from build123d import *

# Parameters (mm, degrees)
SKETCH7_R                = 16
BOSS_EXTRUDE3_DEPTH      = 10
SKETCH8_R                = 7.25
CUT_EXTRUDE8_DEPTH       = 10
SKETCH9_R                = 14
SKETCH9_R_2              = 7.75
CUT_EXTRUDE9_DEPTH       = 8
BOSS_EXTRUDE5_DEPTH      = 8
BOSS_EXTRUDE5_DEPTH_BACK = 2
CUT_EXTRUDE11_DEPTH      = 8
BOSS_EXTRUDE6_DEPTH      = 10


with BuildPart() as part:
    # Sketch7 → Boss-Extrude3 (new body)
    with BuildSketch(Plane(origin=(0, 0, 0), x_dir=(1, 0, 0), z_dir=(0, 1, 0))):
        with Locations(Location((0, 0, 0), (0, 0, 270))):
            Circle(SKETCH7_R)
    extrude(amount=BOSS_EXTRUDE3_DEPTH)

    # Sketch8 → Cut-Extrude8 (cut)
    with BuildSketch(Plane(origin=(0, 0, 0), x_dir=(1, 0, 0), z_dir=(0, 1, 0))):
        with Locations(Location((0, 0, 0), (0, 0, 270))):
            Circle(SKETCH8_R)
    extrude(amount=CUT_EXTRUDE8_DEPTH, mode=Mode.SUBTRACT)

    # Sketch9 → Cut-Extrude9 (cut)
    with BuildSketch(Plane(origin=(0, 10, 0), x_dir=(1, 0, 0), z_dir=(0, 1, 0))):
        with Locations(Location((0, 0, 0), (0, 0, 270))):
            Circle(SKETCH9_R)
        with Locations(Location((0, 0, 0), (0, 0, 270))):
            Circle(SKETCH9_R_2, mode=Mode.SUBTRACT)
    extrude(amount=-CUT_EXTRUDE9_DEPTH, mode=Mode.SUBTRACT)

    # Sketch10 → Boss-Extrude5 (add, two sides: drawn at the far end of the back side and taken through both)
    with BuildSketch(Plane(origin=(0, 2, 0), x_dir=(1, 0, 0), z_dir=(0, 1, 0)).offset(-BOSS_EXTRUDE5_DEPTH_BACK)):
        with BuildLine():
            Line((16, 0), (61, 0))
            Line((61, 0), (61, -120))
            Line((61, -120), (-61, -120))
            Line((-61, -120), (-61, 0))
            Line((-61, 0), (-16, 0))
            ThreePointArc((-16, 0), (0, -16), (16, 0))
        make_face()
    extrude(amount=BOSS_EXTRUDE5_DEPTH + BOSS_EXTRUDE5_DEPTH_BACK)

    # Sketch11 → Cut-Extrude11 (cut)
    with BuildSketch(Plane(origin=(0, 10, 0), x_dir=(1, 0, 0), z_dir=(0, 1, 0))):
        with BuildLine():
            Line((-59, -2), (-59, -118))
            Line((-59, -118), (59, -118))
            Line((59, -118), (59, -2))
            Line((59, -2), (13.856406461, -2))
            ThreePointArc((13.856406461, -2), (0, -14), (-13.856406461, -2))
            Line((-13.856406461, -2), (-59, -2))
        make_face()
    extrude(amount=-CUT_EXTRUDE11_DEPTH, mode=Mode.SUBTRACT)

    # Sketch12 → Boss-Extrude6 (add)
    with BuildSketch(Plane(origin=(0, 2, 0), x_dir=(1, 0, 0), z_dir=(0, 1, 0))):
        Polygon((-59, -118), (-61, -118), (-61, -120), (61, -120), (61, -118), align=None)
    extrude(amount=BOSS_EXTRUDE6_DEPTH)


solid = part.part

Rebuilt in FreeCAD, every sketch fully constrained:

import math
import FreeCAD as App
import Part
import Sketcher

V = App.Vector


def add_polygon(sketch, points):
    """Adds a closed chain of lines whose ends are joined by coincident constraints."""
    first, n = sketch.GeometryCount, len(points)
    for a, b in zip(points, points[1:] + points[:1]):
        sketch.addGeometry(Part.LineSegment(App.Vector(*a, 0), App.Vector(*b, 0)), False)
    for i in range(n):
        sketch.addConstraint(Sketcher.Constraint("Coincident", first + i, 2, first + (i + 1) % n, 1))

doc = App.newDocument("Part")
params = doc.addObject("Spreadsheet::Sheet", "Params")
for row, (alias, value) in enumerate([
    ("sketch1_diameter", "32 mm"),
    ("pad1_length", "10 mm"),
    ("sketch2_diameter", "14.5 mm"),
    ("pocket1_length", "10 mm"),
    ("sketch3_diameter", "28 mm"),
    ("sketch3_diameter2", "15.5 mm"),
    ("pocket2_length", "8 mm"),
    ("sketch4_radius", "16 mm"),
    ("sketch4_width", "45 mm"),
    ("sketch4_height", "120 mm"),
    ("pad2_length", "8 mm"),
    ("pad2_length2", "2 mm"),
    ("sketch5_radius", "14 mm"),
    ("sketch5_width", "118 mm"),
    ("sketch5_height", "116 mm"),
    ("pocket3_length", "8 mm"),
    ("sketch6_width", "122 mm"),
    ("sketch6_height", "2 mm"),
    ("pad3_length", "10 mm"),
], start=1):
    params.set(f"A{row}", alias)
    params.set(f"B{row}", "=" + value)
    params.setAlias(f"B{row}", alias)

body = doc.addObject("PartDesign::Body", "Body")

# Sketch on XZ plane
sketch1 = body.newObject("Sketcher::SketchObject", "Sketch")
sketch1.AttachmentSupport = (doc.getObject("XZ_Plane"), [""])
sketch1.MapMode = "FlatFace"
sketch1.addGeometry(Part.Circle(V(0, 0, 0), V(0, 0, 1), 16), False)
sketch1.addConstraint([
    Sketcher.Constraint("Coincident", 0, 3, -1, 1),
    Sketcher.Constraint("Diameter", 0, 32.0),
])
sketch1.setExpression("Constraints[1]", "Params.sketch1_diameter")
pad1 = body.newObject("PartDesign::Pad", "Pad")
pad1.Profile = sketch1
pad1.setExpression("Length", "Params.pad1_length")
pad1.Reversed = True

# Sketch on XZ plane
sketch2 = body.newObject("Sketcher::SketchObject", "Sketch001")
sketch2.AttachmentSupport = (doc.getObject("XZ_Plane"), [""])
sketch2.MapMode = "FlatFace"
sketch2.addGeometry(Part.Circle(V(0, 0, 0), V(0, 0, 1), 7.25), False)
sketch2.addConstraint([
    Sketcher.Constraint("Coincident", 0, 3, -1, 1),
    Sketcher.Constraint("Diameter", 0, 14.5),
])
sketch2.setExpression("Constraints[1]", "Params.sketch2_diameter")
pocket1 = body.newObject("PartDesign::Pocket", "Pocket")
pocket1.Profile = sketch2
pocket1.setExpression("Length", "Params.pocket1_length")

# Sketch on XZ plane
sketch3 = body.newObject("Sketcher::SketchObject", "Sketch002")
sketch3.AttachmentSupport = (doc.getObject("XZ_Plane"), [""])
sketch3.MapMode = "FlatFace"
sketch3.AttachmentOffset = App.Placement(V(0, 0, -10), App.Rotation())
sketch3.addGeometry([
    Part.Circle(V(0, 0, 0), V(0, 0, 1), 14),
    Part.Circle(V(0, 0, 0), V(0, 0, 1), 7.75),
], False)
sketch3.addConstraint([
    Sketcher.Constraint("Coincident", 0, 3, -1, 1),
    Sketcher.Constraint("Coincident", 1, 3, -1, 1),
    Sketcher.Constraint("Diameter", 0, 28.0),
    Sketcher.Constraint("Diameter", 1, 15.5),
])
sketch3.setExpression("Constraints[2]", "Params.sketch3_diameter")
sketch3.setExpression("Constraints[3]", "Params.sketch3_diameter2")
pocket2 = body.newObject("PartDesign::Pocket", "Pocket001")
pocket2.Profile = sketch3
pocket2.setExpression("Length", "Params.pocket2_length")
pocket2.Reversed = True

# Sketch on XZ plane
sketch4 = body.newObject("Sketcher::SketchObject", "Sketch003")
sketch4.AttachmentSupport = (doc.getObject("XZ_Plane"), [""])
sketch4.MapMode = "FlatFace"
sketch4.AttachmentOffset = App.Placement(V(0, 0, -2), App.Rotation())
sketch4.addGeometry([
    Part.LineSegment(V(61, 0, 0), V(16, 0, 0)),  # 0
    Part.ArcOfCircle(Part.Circle(V(0, 0, 0), V(0, 0, 1), 16), math.radians(0), math.radians(180)),  # 1
    Part.LineSegment(V(-16, 0, 0), V(-61, 0, 0)),  # 2
    Part.LineSegment(V(-61, 0, 0), V(-61, 120, 0)),  # 3
    Part.LineSegment(V(-61, 120, 0), V(61, 120, 0)),  # 4
    Part.LineSegment(V(61, 120, 0), V(61, 0, 0)),  # 5
], False)
sketch4.addConstraint([
    Sketcher.Constraint("Coincident", 0, 2, 1, 1),
    Sketcher.Constraint("Coincident", 1, 2, 2, 1),
    Sketcher.Constraint("Coincident", 2, 2, 3, 1),
    Sketcher.Constraint("Coincident", 3, 2, 4, 1),
    Sketcher.Constraint("Coincident", 4, 2, 5, 1),
    Sketcher.Constraint("Coincident", 5, 2, 0, 1),
    Sketcher.Constraint("Horizontal", 0),
    Sketcher.Constraint("Horizontal", 2),
    Sketcher.Constraint("Vertical", 3),
    Sketcher.Constraint("Horizontal", 4),
    Sketcher.Constraint("Vertical", 5),
    Sketcher.Constraint("Coincident", 1, 3, -1, 1),
    Sketcher.Constraint("Symmetric", 2, 2, 5, 2, -1, 1),
    Sketcher.Constraint("PointOnObject", 0, 2, -1),
    Sketcher.Constraint("Radius", 1, 16.0),
    Sketcher.Constraint("DistanceX", 0, 2, 0, 1, 45.0),
    Sketcher.Constraint("DistanceY", 3, 1, 3, 2, 120.0),
])
sketch4.setExpression("Constraints[14]", "Params.sketch4_radius")
sketch4.setExpression("Constraints[15]", "Params.sketch4_width")
sketch4.setExpression("Constraints[16]", "Params.sketch4_height")
pad2 = body.newObject("PartDesign::Pad", "Pad001")
pad2.Profile = sketch4
pad2.Type = "TwoLengths"
pad2.setExpression("Length", "Params.pad2_length")
pad2.setExpression("Length2", "Params.pad2_length2")
pad2.Reversed = True

# Sketch on XZ plane
sketch5 = body.newObject("Sketcher::SketchObject", "Sketch004")
sketch5.AttachmentSupport = (doc.getObject("XZ_Plane"), [""])
sketch5.MapMode = "FlatFace"
sketch5.AttachmentOffset = App.Placement(V(0, 0, -10), App.Rotation())
sketch5.addGeometry([
    Part.LineSegment(V(-59, 2, 0), V(-59, 118, 0)),  # 0
    Part.LineSegment(V(-59, 118, 0), V(59, 118, 0)),  # 1
    Part.LineSegment(V(59, 118, 0), V(59, 2, 0)),  # 2
    Part.LineSegment(V(59, 2, 0), V(13.856406, 2, 0)),  # 3
    Part.ArcOfCircle(Part.Circle(V(0, 0, 0), V(0, 0, 1), 14), math.radians(8.213211), math.radians(171.786789)),  # 4
    Part.LineSegment(V(-13.856406, 2, 0), V(-59, 2, 0)),  # 5
], False)
sketch5.addConstraint([
    Sketcher.Constraint("Coincident", 0, 2, 1, 1),
    Sketcher.Constraint("Coincident", 1, 2, 2, 1),
    Sketcher.Constraint("Coincident", 2, 2, 3, 1),
    Sketcher.Constraint("Coincident", 3, 2, 4, 1),
    Sketcher.Constraint("Coincident", 4, 2, 5, 1),
    Sketcher.Constraint("Coincident", 5, 2, 0, 1),
    Sketcher.Constraint("Vertical", 0),
    Sketcher.Constraint("Horizontal", 1),
    Sketcher.Constraint("Vertical", 2),
    Sketcher.Constraint("Horizontal", 3),
    Sketcher.Constraint("Horizontal", 5),
    Sketcher.Constraint("Coincident", 4, 3, -1, 1),
    Sketcher.Constraint("Symmetric", 2, 2, 5, 2, -2),
    Sketcher.Constraint("Radius", 4, 14.0),
    Sketcher.Constraint("DistanceX", 1, 1, 1, 2, 118.0),
    Sketcher.Constraint("DistanceY", 0, 1, 0, 2, 116.0),
    Sketcher.Constraint("DistanceY", -1, 1, 0, 2, 118.0),
])
sketch5.setExpression("Constraints[13]", "Params.sketch5_radius")
sketch5.setExpression("Constraints[14]", "Params.sketch5_width")
sketch5.setExpression("Constraints[15]", "Params.sketch5_height")
pocket3 = body.newObject("PartDesign::Pocket", "Pocket002")
pocket3.Profile = sketch5
pocket3.setExpression("Length", "Params.pocket3_length")
pocket3.Reversed = True

# Sketch on XZ plane
sketch6 = body.newObject("Sketcher::SketchObject", "Sketch005")
sketch6.AttachmentSupport = (doc.getObject("XZ_Plane"), [""])
sketch6.MapMode = "FlatFace"
sketch6.AttachmentOffset = App.Placement(V(0, 0, -2), App.Rotation())
add_polygon(sketch6, [(-61, 118), (-61, 120), (61, 120), (61, 118)])  # lines 0-3
sketch6.addConstraint([
    Sketcher.Constraint("Vertical", 0),
    Sketcher.Constraint("Horizontal", 1),
    Sketcher.Constraint("Vertical", 2),
    Sketcher.Constraint("Horizontal", 3),
    Sketcher.Constraint("DistanceX", 1, 1, 1, 2, 122.0),
    Sketcher.Constraint("DistanceY", 0, 1, 0, 2, 2.0),
    Sketcher.Constraint("DistanceX", 0, 2, -1, 1, 61.0),
    Sketcher.Constraint("DistanceY", -1, 1, 0, 2, 120.0),
])
sketch6.setExpression("Constraints[8]", "Params.sketch6_width")
sketch6.setExpression("Constraints[9]", "Params.sketch6_height")
pad3 = body.newObject("PartDesign::Pad", "Pad002")
pad3.Profile = sketch6
pad3.setExpression("Length", "Params.pad3_length")
pad3.Reversed = True

doc.recompute()
